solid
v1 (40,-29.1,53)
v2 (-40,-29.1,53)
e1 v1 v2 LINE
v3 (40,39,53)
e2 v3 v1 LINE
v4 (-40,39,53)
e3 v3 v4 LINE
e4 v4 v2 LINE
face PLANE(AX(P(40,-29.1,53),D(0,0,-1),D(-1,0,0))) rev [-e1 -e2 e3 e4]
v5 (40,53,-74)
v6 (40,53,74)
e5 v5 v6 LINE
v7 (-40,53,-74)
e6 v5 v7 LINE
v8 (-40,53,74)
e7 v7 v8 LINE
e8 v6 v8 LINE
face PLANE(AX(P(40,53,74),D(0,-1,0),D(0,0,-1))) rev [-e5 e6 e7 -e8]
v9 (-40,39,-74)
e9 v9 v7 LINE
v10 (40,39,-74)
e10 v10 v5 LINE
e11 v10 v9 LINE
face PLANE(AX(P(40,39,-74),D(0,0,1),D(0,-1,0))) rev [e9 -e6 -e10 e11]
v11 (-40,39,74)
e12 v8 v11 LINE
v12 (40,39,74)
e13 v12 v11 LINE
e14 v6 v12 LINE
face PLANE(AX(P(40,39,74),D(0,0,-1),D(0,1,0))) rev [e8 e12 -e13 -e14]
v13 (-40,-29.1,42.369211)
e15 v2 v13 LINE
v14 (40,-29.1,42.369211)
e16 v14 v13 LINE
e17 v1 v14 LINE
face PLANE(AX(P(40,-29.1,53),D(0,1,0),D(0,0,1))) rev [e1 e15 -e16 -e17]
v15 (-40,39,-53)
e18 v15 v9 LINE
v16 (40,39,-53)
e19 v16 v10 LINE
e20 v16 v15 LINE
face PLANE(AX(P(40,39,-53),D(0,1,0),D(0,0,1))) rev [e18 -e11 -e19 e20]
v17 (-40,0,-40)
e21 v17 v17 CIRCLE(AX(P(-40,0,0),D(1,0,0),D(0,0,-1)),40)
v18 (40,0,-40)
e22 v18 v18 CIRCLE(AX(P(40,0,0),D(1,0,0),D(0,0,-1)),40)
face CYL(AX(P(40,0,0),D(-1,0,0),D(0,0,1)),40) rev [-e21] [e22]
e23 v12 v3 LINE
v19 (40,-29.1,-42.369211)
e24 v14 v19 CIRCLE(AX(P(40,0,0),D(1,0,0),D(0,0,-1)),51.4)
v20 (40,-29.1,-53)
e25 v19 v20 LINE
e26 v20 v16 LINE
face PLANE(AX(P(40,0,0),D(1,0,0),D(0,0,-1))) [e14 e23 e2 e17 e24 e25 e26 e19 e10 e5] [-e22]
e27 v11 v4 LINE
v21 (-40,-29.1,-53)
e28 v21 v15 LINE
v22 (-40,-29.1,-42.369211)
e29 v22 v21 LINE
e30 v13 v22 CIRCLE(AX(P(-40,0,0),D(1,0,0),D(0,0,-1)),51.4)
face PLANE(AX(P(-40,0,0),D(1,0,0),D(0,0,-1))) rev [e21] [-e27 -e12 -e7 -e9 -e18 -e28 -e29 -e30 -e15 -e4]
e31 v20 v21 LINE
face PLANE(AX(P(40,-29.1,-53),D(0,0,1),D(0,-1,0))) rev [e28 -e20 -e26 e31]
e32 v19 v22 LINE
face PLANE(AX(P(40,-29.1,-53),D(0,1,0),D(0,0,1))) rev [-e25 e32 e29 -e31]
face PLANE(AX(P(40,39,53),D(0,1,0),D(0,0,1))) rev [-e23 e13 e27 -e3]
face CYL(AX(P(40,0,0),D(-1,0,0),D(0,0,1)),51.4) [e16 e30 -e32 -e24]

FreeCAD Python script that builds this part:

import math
import FreeCAD as App
import Part
import Sketcher
Q = App.Units.Quantity

doc = App.newDocument("Part")
params = doc.addObject("Spreadsheet::Sheet", "Params")
for row, (alias, value) in enumerate([
    ("sketch1_diameter", "80 mm"),
    ("sketch1_radius", "51.4 mm"),
    ("sketch1_width", "14 mm"),
    ("sketch1_height", "21 mm"),
    ("sketch1_height2", "148 mm"),
    ("pad1_length", "80 mm"),
], start=1):
    params.set(f"A{row}", alias)
    params.set(f"B{row}", "=" + value)
    params.setAlias(f"B{row}", alias)

body = doc.addObject("PartDesign::Body", "Body")

# Sketch on YZ plane
sketch1 = doc.addObject("Sketcher::SketchObject", "Sketch")
body.addObject(sketch1)
sketch1.AttachmentSupport = (doc.YZ_Plane, [""])
sketch1.MapMode = "FlatFace"
sketch1.addGeometry(Part.LineSegment(App.Vector(-29, 53, 0), App.Vector(-29, 42, 0)), False)
sketch1.addGeometry(Part.ArcOfCircle(Part.Circle(App.Vector(0, 0, 0), App.Vector(0, 0, 1), 51), math.radians(124), math.radians(236)), False)
sketch1.addGeometry(Part.LineSegment(App.Vector(-29, -42, 0), App.Vector(-29, -53, 0)), False)
sketch1.addGeometry(Part.LineSegment(App.Vector(-29, -53, 0), App.Vector(39, -53, 0)), False)
sketch1.addGeometry(Part.LineSegment(App.Vector(39, -53, 0), App.Vector(39, -74, 0)), False)
sketch1.addGeometry(Part.LineSegment(App.Vector(39, -74, 0), App.Vector(53, -74, 0)), False)
sketch1.addGeometry(Part.LineSegment(App.Vector(53, -74, 0), App.Vector(53, 74, 0)), False)
sketch1.addGeometry(Part.LineSegment(App.Vector(53, 74, 0), App.Vector(39, 74, 0)), False)
sketch1.addGeometry(Part.LineSegment(App.Vector(39, 74, 0), App.Vector(39, 53, 0)), False)
sketch1.addGeometry(Part.LineSegment(App.Vector(39, 53, 0), App.Vector(-29, 53, 0)), False)
sketch1.addGeometry(Part.Circle(App.Vector(0, 0, 0), App.Vector(0, 0, 1), 40), False)
sketch1.addConstraint(Sketcher.Constraint("Coincident", 0, 2, 1, 1))
sketch1.addConstraint(Sketcher.Constraint("Coincident", 1, 2, 2, 1))
sketch1.addConstraint(Sketcher.Constraint("Coincident", 2, 2, 3, 1))
sketch1.addConstraint(Sketcher.Constraint("Coincident", 3, 2, 4, 1))
sketch1.addConstraint(Sketcher.Constraint("Coincident", 4, 2, 5, 1))
sketch1.addConstraint(Sketcher.Constraint("Coincident", 5, 2, 6, 1))
sketch1.addConstraint(Sketcher.Constraint("Coincident", 6, 2, 7, 1))
sketch1.addConstraint(Sketcher.Constraint("Coincident", 7, 2, 8, 1))
sketch1.addConstraint(Sketcher.Constraint("Coincident", 8, 2, 9, 1))
sketch1.addConstraint(Sketcher.Constraint("Coincident", 9, 2, 0, 1))
sketch1.addConstraint(Sketcher.Constraint("Vertical", 0))
sketch1.addConstraint(Sketcher.Constraint("Vertical", 2))
sketch1.addConstraint(Sketcher.Constraint("Horizontal", 3))
sketch1.addConstraint(Sketcher.Constraint("Vertical", 4))
sketch1.addConstraint(Sketcher.Constraint("Horizontal", 5))
sketch1.addConstraint(Sketcher.Constraint("Vertical", 6))
sketch1.addConstraint(Sketcher.Constraint("Horizontal", 7))
sketch1.addConstraint(Sketcher.Constraint("Vertical", 8))
sketch1.addConstraint(Sketcher.Constraint("Horizontal", 9))
sketch1.addConstraint(Sketcher.Constraint("Coincident", 1, 3, -1, 1))
sketch1.addConstraint(Sketcher.Constraint("Coincident", 10, 3, -1, 1))
sketch1.addConstraint(Sketcher.Constraint("Symmetric", 4, 2, 7, 2, -1))
sketch1.addConstraint(Sketcher.Constraint("Symmetric", 2, 2, 9, 2, -1))
sketch1.addConstraint(Sketcher.Constraint("Diameter", 10, Q("80 mm")))
sketch1.addConstraint(Sketcher.Constraint("Radius", 1, Q("51.4 mm")))
sketch1.addConstraint(Sketcher.Constraint("DistanceX", 5, 1, 5, 2, Q("14 mm")))
sketch1.addConstraint(Sketcher.Constraint("DistanceY", 4, 2, 4, 1, Q("21 mm")))
sketch1.addConstraint(Sketcher.Constraint("DistanceY", 6, 1, 6, 2, Q("148 mm")))
sketch1.addConstraint(Sketcher.Constraint("DistanceX", 3, 1, 3, 2, Q("68.1 mm")))
sketch1.addConstraint(Sketcher.Constraint("DistanceX", -1, 1, 3, 2, Q("39 mm")))
sketch1.setExpression("Constraints[23]", "Params.sketch1_diameter")
sketch1.setExpression("Constraints[24]", "Params.sketch1_radius")
sketch1.setExpression("Constraints[25]", "Params.sketch1_width")
sketch1.setExpression("Constraints[26]", "Params.sketch1_height")
sketch1.setExpression("Constraints[27]", "Params.sketch1_height2")
pad1 = doc.addObject("PartDesign::Pad", "Pad")
body.addObject(pad1)
pad1.Profile = sketch1
pad1.setExpression("Length", "Params.pad1_length")
pad1.Midplane = True

doc.recompute()
